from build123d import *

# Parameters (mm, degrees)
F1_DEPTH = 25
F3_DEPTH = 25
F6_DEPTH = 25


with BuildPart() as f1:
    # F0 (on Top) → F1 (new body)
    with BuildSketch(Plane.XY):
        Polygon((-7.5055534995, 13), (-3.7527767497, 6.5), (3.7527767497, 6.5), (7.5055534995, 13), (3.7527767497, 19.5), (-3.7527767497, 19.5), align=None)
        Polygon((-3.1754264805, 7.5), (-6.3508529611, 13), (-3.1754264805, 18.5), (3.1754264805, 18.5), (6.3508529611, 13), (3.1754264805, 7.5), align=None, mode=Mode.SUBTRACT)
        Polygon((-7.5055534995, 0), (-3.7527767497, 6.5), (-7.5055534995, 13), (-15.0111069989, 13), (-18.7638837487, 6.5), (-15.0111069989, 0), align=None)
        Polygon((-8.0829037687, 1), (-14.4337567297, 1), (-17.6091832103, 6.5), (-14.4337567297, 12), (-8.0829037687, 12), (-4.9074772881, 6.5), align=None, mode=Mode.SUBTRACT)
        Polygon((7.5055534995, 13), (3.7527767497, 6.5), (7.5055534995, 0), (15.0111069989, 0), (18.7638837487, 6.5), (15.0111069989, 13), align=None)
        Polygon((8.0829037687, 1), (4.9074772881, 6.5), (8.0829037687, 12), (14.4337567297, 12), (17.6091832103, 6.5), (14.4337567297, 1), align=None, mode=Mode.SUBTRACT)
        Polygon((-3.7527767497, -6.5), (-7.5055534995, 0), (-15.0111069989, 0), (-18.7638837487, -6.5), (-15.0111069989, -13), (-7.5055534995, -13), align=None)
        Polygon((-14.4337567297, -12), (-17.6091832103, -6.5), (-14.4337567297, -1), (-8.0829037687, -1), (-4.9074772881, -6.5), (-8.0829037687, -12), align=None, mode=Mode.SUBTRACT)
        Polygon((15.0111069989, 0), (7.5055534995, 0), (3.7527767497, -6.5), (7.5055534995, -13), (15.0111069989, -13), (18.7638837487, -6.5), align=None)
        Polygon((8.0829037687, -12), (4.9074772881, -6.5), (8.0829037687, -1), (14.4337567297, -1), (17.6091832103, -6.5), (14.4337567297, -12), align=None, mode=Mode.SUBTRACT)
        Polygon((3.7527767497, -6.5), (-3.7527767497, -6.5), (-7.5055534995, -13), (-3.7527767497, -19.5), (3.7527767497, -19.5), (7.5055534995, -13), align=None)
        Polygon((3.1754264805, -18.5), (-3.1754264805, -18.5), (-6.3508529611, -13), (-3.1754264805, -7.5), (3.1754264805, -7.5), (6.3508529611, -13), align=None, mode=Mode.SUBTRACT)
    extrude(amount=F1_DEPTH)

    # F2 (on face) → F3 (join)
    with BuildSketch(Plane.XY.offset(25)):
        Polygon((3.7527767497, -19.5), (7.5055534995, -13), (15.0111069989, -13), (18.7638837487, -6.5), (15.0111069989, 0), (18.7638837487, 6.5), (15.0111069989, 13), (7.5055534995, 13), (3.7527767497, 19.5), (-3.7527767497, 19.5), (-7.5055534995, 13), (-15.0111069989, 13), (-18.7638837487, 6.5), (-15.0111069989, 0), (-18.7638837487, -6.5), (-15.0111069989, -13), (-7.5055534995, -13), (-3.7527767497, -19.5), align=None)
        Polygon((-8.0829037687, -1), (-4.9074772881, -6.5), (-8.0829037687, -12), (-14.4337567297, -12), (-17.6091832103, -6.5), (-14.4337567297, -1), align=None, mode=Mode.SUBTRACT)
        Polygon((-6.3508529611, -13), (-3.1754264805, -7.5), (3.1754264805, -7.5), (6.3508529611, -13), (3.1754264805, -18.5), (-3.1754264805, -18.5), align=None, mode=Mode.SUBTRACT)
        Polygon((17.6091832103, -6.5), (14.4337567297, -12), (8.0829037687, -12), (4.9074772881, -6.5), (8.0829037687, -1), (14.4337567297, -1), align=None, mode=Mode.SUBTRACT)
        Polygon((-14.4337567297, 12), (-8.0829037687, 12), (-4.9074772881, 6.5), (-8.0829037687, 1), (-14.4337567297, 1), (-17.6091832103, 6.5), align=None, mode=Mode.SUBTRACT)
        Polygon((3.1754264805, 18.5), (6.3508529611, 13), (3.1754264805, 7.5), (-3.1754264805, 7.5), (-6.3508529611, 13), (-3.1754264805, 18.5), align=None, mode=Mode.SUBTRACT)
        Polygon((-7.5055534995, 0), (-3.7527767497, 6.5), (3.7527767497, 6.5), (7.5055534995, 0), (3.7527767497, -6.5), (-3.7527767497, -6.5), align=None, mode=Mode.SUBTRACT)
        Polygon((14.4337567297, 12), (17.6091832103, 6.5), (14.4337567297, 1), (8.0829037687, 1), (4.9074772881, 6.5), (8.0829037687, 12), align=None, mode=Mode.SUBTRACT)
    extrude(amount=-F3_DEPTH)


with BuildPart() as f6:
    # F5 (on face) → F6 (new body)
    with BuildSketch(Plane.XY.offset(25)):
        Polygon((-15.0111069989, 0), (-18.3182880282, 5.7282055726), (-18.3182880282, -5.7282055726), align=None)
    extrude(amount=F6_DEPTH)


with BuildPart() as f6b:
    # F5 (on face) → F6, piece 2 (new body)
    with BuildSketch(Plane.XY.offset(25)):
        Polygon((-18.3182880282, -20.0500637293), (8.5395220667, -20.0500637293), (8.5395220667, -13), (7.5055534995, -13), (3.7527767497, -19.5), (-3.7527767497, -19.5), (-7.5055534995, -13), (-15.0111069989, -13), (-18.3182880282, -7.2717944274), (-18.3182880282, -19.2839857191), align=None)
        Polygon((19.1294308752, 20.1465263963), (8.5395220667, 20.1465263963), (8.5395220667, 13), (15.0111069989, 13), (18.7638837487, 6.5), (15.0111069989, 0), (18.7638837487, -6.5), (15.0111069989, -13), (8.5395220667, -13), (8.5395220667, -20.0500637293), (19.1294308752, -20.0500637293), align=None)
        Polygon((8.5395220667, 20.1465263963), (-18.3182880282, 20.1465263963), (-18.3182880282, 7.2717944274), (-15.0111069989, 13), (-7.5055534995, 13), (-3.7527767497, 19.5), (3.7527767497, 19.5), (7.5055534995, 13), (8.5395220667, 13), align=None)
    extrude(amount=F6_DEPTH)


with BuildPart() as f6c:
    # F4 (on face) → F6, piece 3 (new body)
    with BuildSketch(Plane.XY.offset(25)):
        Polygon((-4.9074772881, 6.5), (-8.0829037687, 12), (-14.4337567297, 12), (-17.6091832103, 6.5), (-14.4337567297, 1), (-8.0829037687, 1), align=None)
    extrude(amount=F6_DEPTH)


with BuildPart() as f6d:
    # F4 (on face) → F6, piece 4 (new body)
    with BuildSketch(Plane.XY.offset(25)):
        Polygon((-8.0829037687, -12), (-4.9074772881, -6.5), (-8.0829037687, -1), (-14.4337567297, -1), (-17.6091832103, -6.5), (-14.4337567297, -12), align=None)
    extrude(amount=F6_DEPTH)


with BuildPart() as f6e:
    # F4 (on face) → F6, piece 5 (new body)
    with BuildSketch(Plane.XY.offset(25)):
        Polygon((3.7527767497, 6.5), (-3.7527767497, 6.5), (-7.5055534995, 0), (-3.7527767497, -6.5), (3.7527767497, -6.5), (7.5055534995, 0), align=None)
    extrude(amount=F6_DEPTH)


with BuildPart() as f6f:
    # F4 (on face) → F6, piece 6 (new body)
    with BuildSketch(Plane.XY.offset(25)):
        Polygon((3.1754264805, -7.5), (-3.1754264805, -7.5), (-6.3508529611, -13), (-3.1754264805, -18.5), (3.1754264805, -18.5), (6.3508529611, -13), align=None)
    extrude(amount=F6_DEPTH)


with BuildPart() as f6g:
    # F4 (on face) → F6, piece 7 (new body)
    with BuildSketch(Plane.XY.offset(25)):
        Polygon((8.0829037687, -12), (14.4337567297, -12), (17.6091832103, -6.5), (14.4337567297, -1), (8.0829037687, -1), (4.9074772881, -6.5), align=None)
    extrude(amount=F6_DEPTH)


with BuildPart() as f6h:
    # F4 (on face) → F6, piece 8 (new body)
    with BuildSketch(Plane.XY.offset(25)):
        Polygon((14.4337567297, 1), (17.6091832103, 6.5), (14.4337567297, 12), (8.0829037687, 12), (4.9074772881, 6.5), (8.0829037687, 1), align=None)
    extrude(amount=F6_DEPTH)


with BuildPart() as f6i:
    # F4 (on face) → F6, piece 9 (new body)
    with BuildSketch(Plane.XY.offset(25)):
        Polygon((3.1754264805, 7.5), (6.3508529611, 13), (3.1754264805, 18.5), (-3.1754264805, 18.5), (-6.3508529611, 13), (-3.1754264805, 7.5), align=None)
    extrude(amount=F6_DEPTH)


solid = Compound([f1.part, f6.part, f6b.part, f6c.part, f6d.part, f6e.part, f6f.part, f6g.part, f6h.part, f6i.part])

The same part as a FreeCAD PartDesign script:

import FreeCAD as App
import Part
import Sketcher
from FreeCAD import Vector
Q = App.Units.Quantity

doc = App.newDocument("Part")
params = doc.addObject("Spreadsheet::Sheet", "Params")
for row, (alias, value) in enumerate([
    ("pad1_length", "25 mm"),
    ("pad2_length", "25 mm"),
    ("pad3_length", "25 mm"),
    ("pad4_length", "25 mm"),
    ("pad5_length", "25 mm"),
    ("pad6_length", "25 mm"),
    ("pad7_length", "25 mm"),
    ("pad8_length", "25 mm"),
    ("pad9_length", "25 mm"),
    ("pad10_length", "25 mm"),
    ("pad11_length", "25 mm"),
], start=1):
    params.set(f"A{row}", alias)
    params.set(f"B{row}", "=" + value)
    params.setAlias(f"B{row}", alias)

body = doc.addObject("PartDesign::Body", "Body")

# Sketch on XY plane
sketch1 = body.newObject("Sketcher::SketchObject", "Sketch")
sketch1.AttachmentSupport = (doc.getObject("XY_Plane"), [""])
sketch1.MapMode = "FlatFace"
sketch1.addGeometry([
    Part.LineSegment(Vector(-4, 20, 0), Vector(-8, 13, 0)),  # 0
    Part.LineSegment(Vector(-8, 13, 0), Vector(-15, 13, 0)),  # 1
    Part.LineSegment(Vector(-15, 13, 0), Vector(-19, 6, 0)),  # 2
    Part.LineSegment(Vector(-19, 6, 0), Vector(-15, 0, 0)),  # 3
    Part.LineSegment(Vector(-15, 0, 0), Vector(-19, -6, 0)),  # 4
    Part.LineSegment(Vector(-19, -6, 0), Vector(-15, -13, 0)),  # 5
    Part.LineSegment(Vector(-15, -13, 0), Vector(-8, -13, 0)),  # 6
    Part.LineSegment(Vector(-8, -13, 0), Vector(-4, -20, 0)),  # 7
    Part.LineSegment(Vector(-4, -20, 0), Vector(4, -20, 0)),  # 8
    Part.LineSegment(Vector(4, -20, 0), Vector(8, -13, 0)),  # 9
    Part.LineSegment(Vector(8, -13, 0), Vector(15, -13, 0)),  # 10
    Part.LineSegment(Vector(15, -13, 0), Vector(19, -6, 0)),  # 11
    Part.LineSegment(Vector(19, -6, 0), Vector(15, 0, 0)),  # 12
    Part.LineSegment(Vector(15, 0, 0), Vector(19, 6, 0)),  # 13
    Part.LineSegment(Vector(19, 6, 0), Vector(15, 13, 0)),  # 14
    Part.LineSegment(Vector(15, 13, 0), Vector(8, 13, 0)),  # 15
    Part.LineSegment(Vector(8, 13, 0), Vector(4, 20, 0)),  # 16
    Part.LineSegment(Vector(4, 20, 0), Vector(-4, 20, 0)),  # 17
    Part.LineSegment(Vector(-8, -12, 0), Vector(-14, -12, 0)),  # 18
    Part.LineSegment(Vector(-14, -12, 0), Vector(-18, -6, 0)),  # 19
    Part.LineSegment(Vector(-18, -6, 0), Vector(-14, -1, 0)),  # 20
    Part.LineSegment(Vector(-14, -1, 0), Vector(-8, -1, 0)),  # 21
    Part.LineSegment(Vector(-8, -1, 0), Vector(-5, -6, 0)),  # 22
    Part.LineSegment(Vector(-5, -6, 0), Vector(-8, -12, 0)),  # 23
    Part.LineSegment(Vector(6, -13, 0), Vector(3, -18, 0)),  # 24
    Part.LineSegment(Vector(3, -18, 0), Vector(-3, -18, 0)),  # 25
    Part.LineSegment(Vector(-3, -18, 0), Vector(-6, -13, 0)),  # 26
    Part.LineSegment(Vector(-6, -13, 0), Vector(-3, -8, 0)),  # 27
    Part.LineSegment(Vector(-3, -8, 0), Vector(3, -8, 0)),  # 28
    Part.LineSegment(Vector(3, -8, 0), Vector(6, -13, 0)),  # 29
    Part.LineSegment(Vector(14, -12, 0), Vector(8, -12, 0)),  # 30
    Part.LineSegment(Vector(8, -12, 0), Vector(5, -6, 0)),  # 31
    Part.LineSegment(Vector(5, -6, 0), Vector(8, -1, 0)),  # 32
    Part.LineSegment(Vector(8, -1, 0), Vector(14, -1, 0)),  # 33
    Part.LineSegment(Vector(14, -1, 0), Vector(18, -6, 0)),  # 34
    Part.LineSegment(Vector(18, -6, 0), Vector(14, -12, 0)),  # 35
    Part.LineSegment(Vector(-5, 6, 0), Vector(-8, 1, 0)),  # 36
    Part.LineSegment(Vector(-8, 1, 0), Vector(-14, 1, 0)),  # 37
    Part.LineSegment(Vector(-14, 1, 0), Vector(-18, 6, 0)),  # 38
    Part.LineSegment(Vector(-18, 6, 0), Vector(-14, 12, 0)),  # 39
    Part.LineSegment(Vector(-14, 12, 0), Vector(-8, 12, 0)),  # 40
    Part.LineSegment(Vector(-8, 12, 0), Vector(-5, 6, 0)),  # 41
    Part.LineSegment(Vector(-4, -6, 0), Vector(-8, 0, 0)),  # 42
    Part.LineSegment(Vector(-8, 0, 0), Vector(-4, 6, 0)),  # 43
    Part.LineSegment(Vector(-4, 6, 0), Vector(4, 6, 0)),  # 44
    Part.LineSegment(Vector(4, 6, 0), Vector(8, 0, 0)),  # 45
    Part.LineSegment(Vector(8, 0, 0), Vector(4, -6, 0)),  # 46
    Part.LineSegment(Vector(4, -6, 0), Vector(-4, -6, 0)),  # 47
    Part.LineSegment(Vector(14, 1, 0), Vector(8, 1, 0)),  # 48
    Part.LineSegment(Vector(8, 1, 0), Vector(5, 6, 0)),  # 49
    Part.LineSegment(Vector(5, 6, 0), Vector(8, 12, 0)),  # 50
    Part.LineSegment(Vector(8, 12, 0), Vector(14, 12, 0)),  # 51
    Part.LineSegment(Vector(14, 12, 0), Vector(18, 6, 0)),  # 52
    Part.LineSegment(Vector(18, 6, 0), Vector(14, 1, 0)),  # 53
    Part.LineSegment(Vector(3, 8, 0), Vector(-3, 8, 0)),  # 54
    Part.LineSegment(Vector(-3, 8, 0), Vector(-6, 13, 0)),  # 55
    Part.LineSegment(Vector(-6, 13, 0), Vector(-3, 18, 0)),  # 56
    Part.LineSegment(Vector(-3, 18, 0), Vector(3, 18, 0)),  # 57
    Part.LineSegment(Vector(3, 18, 0), Vector(6, 13, 0)),  # 58
    Part.LineSegment(Vector(6, 13, 0), Vector(3, 8, 0)),  # 59
], False)
sketch1.addConstraint([
    Sketcher.Constraint("Coincident", 0, 2, 1, 1),
    Sketcher.Constraint("Coincident", 1, 2, 2, 1),
    Sketcher.Constraint("Coincident", 2, 2, 3, 1),
    Sketcher.Constraint("Coincident", 3, 2, 4, 1),
    Sketcher.Constraint("Coincident", 4, 2, 5, 1),
    Sketcher.Constraint("Coincident", 5, 2, 6, 1),
    Sketcher.Constraint("Coincident", 6, 2, 7, 1),
    Sketcher.Constraint("Coincident", 7, 2, 8, 1),
    Sketcher.Constraint("Coincident", 8, 2, 9, 1),
    Sketcher.Constraint("Coincident", 9, 2, 10, 1),
    Sketcher.Constraint("Coincident", 10, 2, 11, 1),
    Sketcher.Constraint("Coincident", 11, 2, 12, 1),
    Sketcher.Constraint("Coincident", 12, 2, 13, 1),
    Sketcher.Constraint("Coincident", 13, 2, 14, 1),
    Sketcher.Constraint("Coincident", 14, 2, 15, 1),
    Sketcher.Constraint("Coincident", 15, 2, 16, 1),
    Sketcher.Constraint("Coincident", 16, 2, 17, 1),
    Sketcher.Constraint("Coincident", 17, 2, 0, 1),
    Sketcher.Constraint("Coincident", 18, 2, 19, 1),
    Sketcher.Constraint("Coincident", 19, 2, 20, 1),
    Sketcher.Constraint("Coincident", 20, 2, 21, 1),
    Sketcher.Constraint("Coincident", 21, 2, 22, 1),
    Sketcher.Constraint("Coincident", 22, 2, 23, 1),
    Sketcher.Constraint("Coincident", 23, 2, 18, 1),
    Sketcher.Constraint("Coincident", 24, 2, 25, 1),
    Sketcher.Constraint("Coincident", 25, 2, 26, 1),
    Sketcher.Constraint("Coincident", 26, 2, 27, 1),
    Sketcher.Constraint("Coincident", 27, 2, 28, 1),
    Sketcher.Constraint("Coincident", 28, 2, 29, 1),
    Sketcher.Constraint("Coincident", 29, 2, 24, 1),
    Sketcher.Constraint("Coincident", 30, 2, 31, 1),
    Sketcher.Constraint("Coincident", 31, 2, 32, 1),
    Sketcher.Constraint("Coincident", 32, 2, 33, 1),
    Sketcher.Constraint("Coincident", 33, 2, 34, 1),
    Sketcher.Constraint("Coincident", 34, 2, 35, 1),
    Sketcher.Constraint("Coincident", 35, 2, 30, 1),
    Sketcher.Constraint("Coincident", 36, 2, 37, 1),
    Sketcher.Constraint("Coincident", 37, 2, 38, 1),
    Sketcher.Constraint("Coincident", 38, 2, 39, 1),
    Sketcher.Constraint("Coincident", 39, 2, 40, 1),
    Sketcher.Constraint("Coincident", 40, 2, 41, 1),
    Sketcher.Constraint("Coincident", 41, 2, 36, 1),
    Sketcher.Constraint("Coincident", 42, 2, 43, 1),
    Sketcher.Constraint("Coincident", 43, 2, 44, 1),
    Sketcher.Constraint("Coincident", 44, 2, 45, 1),
    Sketcher.Constraint("Coincident", 45, 2, 46, 1),
    Sketcher.Constraint("Coincident", 46, 2, 47, 1),
    Sketcher.Constraint("Coincident", 47, 2, 42, 1),
    Sketcher.Constraint("Coincident", 48, 2, 49, 1),
    Sketcher.Constraint("Coincident", 49, 2, 50, 1),
    Sketcher.Constraint("Coincident", 50, 2, 51, 1),
    Sketcher.Constraint("Coincident", 51, 2, 52, 1),
    Sketcher.Constraint("Coincident", 52, 2, 53, 1),
    Sketcher.Constraint("Coincident", 53, 2, 48, 1),
    Sketcher.Constraint("Coincident", 54, 2, 55, 1),
    Sketcher.Constraint("Coincident", 55, 2, 56, 1),
    Sketcher.Constraint("Coincident", 56, 2, 57, 1),
    Sketcher.Constraint("Coincident", 57, 2, 58, 1),
    Sketcher.Constraint("Coincident", 58, 2, 59, 1),
    Sketcher.Constraint("Coincident", 59, 2, 54, 1),
    Sketcher.Constraint("Horizontal", 1),
    Sketcher.Constraint("Horizontal", 6),
    Sketcher.Constraint("Horizontal", 8),
    Sketcher.Constraint("Horizontal", 10),
    Sketcher.Constraint("Horizontal", 15),
    Sketcher.Constraint("Horizontal", 17),
    Sketcher.Constraint("Horizontal", 18),
    Sketcher.Constraint("Horizontal", 21),
    Sketcher.Constraint("Horizontal", 25),
    Sketcher.Constraint("Horizontal", 28),
    Sketcher.Constraint("Horizontal", 30),
    Sketcher.Constraint("Horizontal", 33),
    Sketcher.Constraint("Horizontal", 37),
    Sketcher.Constraint("Horizontal", 40),
    Sketcher.Constraint("Horizontal", 44),
    Sketcher.Constraint("Horizontal", 47),
    Sketcher.Constraint("Horizontal", 48),
    Sketcher.Constraint("Horizontal", 51),
    Sketcher.Constraint("Horizontal", 54),
    Sketcher.Constraint("Horizontal", 57),
    Sketcher.Constraint("Symmetric", 0, 2, 9, 2, -1, 1),
    Sketcher.Constraint("Symmetric", 2, 2, 11, 2, -1, 1),
    Sketcher.Constraint("Symmetric", 3, 2, 12, 2, -1, 1),
    Sketcher.Constraint("Symmetric", 4, 2, 13, 2, -1, 1),
    Sketcher.Constraint("Symmetric", 5, 2, 14, 2, -1, 1),
    Sketcher.Constraint("Symmetric", 7, 2, 16, 2, -1, 1),
    Sketcher.Constraint("Symmetric", 32, 2, 36, 2, -1, 1),
    Sketcher.Constraint("Symmetric", 34, 2, 38, 2, -1, 1),
    Sketcher.Constraint("Symmetric", 35, 2, 39, 2, -1, 1),
    Sketcher.Constraint("Symmetric", 31, 2, 41, 2, -1, 1),
    Sketcher.Constraint("Symmetric", 42, 2, 45, 2, -1, 1),
    Sketcher.Constraint("Symmetric", 43, 2, 46, 2, -1, 1),
    Sketcher.Constraint("Symmetric", 21, 2, 48, 2, -1, 1),
    Sketcher.Constraint("Symmetric", 22, 2, 49, 2, -1, 1),
    Sketcher.Constraint("Symmetric", 23, 2, 50, 2, -1, 1),
    Sketcher.Constraint("Symmetric", 19, 2, 52, 2, -1, 1),
    Sketcher.Constraint("Symmetric", 28, 2, 54, 2, -1, 1),
    Sketcher.Constraint("Symmetric", 29, 2, 55, 2, -1, 1),
    Sketcher.Constraint("Symmetric", 24, 2, 56, 2, -1, 1),
    Sketcher.Constraint("Symmetric", 26, 2, 58, 2, -1, 1),
    Sketcher.Constraint("Symmetric", 6, 2, 9, 2, -2),
    Sketcher.Constraint("Symmetric", 4, 2, 11, 2, -2),
    Sketcher.Constraint("Symmetric", 26, 2, 29, 2, -2),
    Sketcher.Constraint("Symmetric", 23, 2, 30, 2, -2),
    Sketcher.Constraint("Symmetric", 22, 2, 31, 2, -2),
    Sketcher.Constraint("Symmetric", 21, 2, 32, 2, -2),
    Sketcher.Constraint("Symmetric", 19, 2, 34, 2, -2),
    Sketcher.Constraint("PointOnObject", 3, 2, -1),
    Sketcher.Constraint("PointOnObject", 42, 2, -1),
    Sketcher.Constraint("Parallel", 0, 2),
    Sketcher.Constraint("Parallel", 2, 4),
    Sketcher.Constraint("Parallel", 3, 5),
    Sketcher.Constraint("Parallel", 5, 7),
    Sketcher.Constraint("Parallel", 4, 9),
    Sketcher.Constraint("Parallel", 9, 11),
    Sketcher.Constraint("Parallel", 14, 16),
    Sketcher.Constraint("Parallel", 16, 19),
    Sketcher.Constraint("Parallel", 13, 20),
    Sketcher.Constraint("Parallel", 19, 22),
    Sketcher.Constraint("Parallel", 20, 23),
    Sketcher.Constraint("Parallel", 23, 24),
    Sketcher.Constraint("Parallel", 22, 26),
    Sketcher.Constraint("Parallel", 24, 27),
    Sketcher.Constraint("Parallel", 26, 29),
    Sketcher.Constraint("Parallel", 31, 34),
    Sketcher.Constraint("Parallel", 32, 35),
    Sketcher.Constraint("Parallel", 34, 38),
    Sketcher.Constraint("Parallel", 38, 41),
    Sketcher.Constraint("Parallel", 41, 42),
    Sketcher.Constraint("Parallel", 39, 43),
    Sketcher.Constraint("Parallel", 42, 45),
    Sketcher.Constraint("Parallel", 49, 52),
    Sketcher.Constraint("Parallel", 50, 53),
    Sketcher.Constraint("Parallel", 55, 58),
    Sketcher.Constraint("Parallel", 56, 59),
    Sketcher.Constraint("Horizontal", 11, 2, 19, 2),
    Sketcher.Constraint("Horizontal", 19, 2, 22, 2),
    Sketcher.Constraint("Horizontal", 10, 2, 26, 2),
    Sketcher.Constraint("Horizontal", 41, 2, 43, 2),
    Sketcher.Constraint("Vertical", 1, 2, 3, 2),
    Sketcher.Constraint("Vertical", 18, 2, 20, 2),
    Sketcher.Constraint("Vertical", 25, 2, 27, 2),
    Sketcher.Constraint("Vertical", 6, 2, 42, 2),
    Sketcher.Constraint("Vertical", 17, 2, 43, 2),
    Sketcher.Constraint("Equal", 6, 8),
    Sketcher.Constraint("Equal", 21, 25),
    Sketcher.Constraint("Equal", 23, 24),
    Sketcher.Constraint("Angle", 0, Q("-120 deg")),
    Sketcher.Constraint("DistanceY", -1, 1, 0, 2, 13.0),
    Sketcher.Constraint("DistanceY", 18, 2, -1, 1, 12.0),
    Sketcher.Constraint("DistanceX", 4, 2, 19, 2, 1.154701),
    Sketcher.Constraint("DistanceX", 6, 2, 26, 2, 1.154701),
    Sketcher.Constraint("DistanceX", 1, 2, 1, 1, 7.505553),
])
pad1 = body.newObject("PartDesign::Pad", "Pad")
pad1.Profile = sketch1
pad1.setExpression("Length", "Params.pad1_length")

# Sketch on XY plane
sketch2 = body.newObject("Sketcher::SketchObject", "Sketch001")
sketch2.AttachmentSupport = (doc.getObject("XY_Plane"), [""])
sketch2.MapMode = "FlatFace"
sketch2.AttachmentOffset = App.Placement(Vector(0, 0, 25), App.Rotation())
sketch2.addGeometry([
    Part.LineSegment(Vector(4, -20, 0), Vector(8, -13, 0)),  # 0
    Part.LineSegment(Vector(8, -13, 0), Vector(15, -13, 0)),  # 1
    Part.LineSegment(Vector(15, -13, 0), Vector(19, -6, 0)),  # 2
    Part.LineSegment(Vector(19, -6, 0), Vector(15, 0, 0)),  # 3
    Part.LineSegment(Vector(15, 0, 0), Vector(19, 6, 0)),  # 4
    Part.LineSegment(Vector(19, 6, 0), Vector(15, 13, 0)),  # 5
    Part.LineSegment(Vector(15, 13, 0), Vector(8, 13, 0)),  # 6
    Part.LineSegment(Vector(8, 13, 0), Vector(4, 20, 0)),  # 7
    Part.LineSegment(Vector(4, 20, 0), Vector(-4, 20, 0)),  # 8
    Part.LineSegment(Vector(-4, 20, 0), Vector(-8, 13, 0)),  # 9
    Part.LineSegment(Vector(-8, 13, 0), Vector(-15, 13, 0)),  # 10
    Part.LineSegment(Vector(-15, 13, 0), Vector(-19, 6, 0)),  # 11
    Part.LineSegment(Vector(-19, 6, 0), Vector(-15, 0, 0)),  # 12
    Part.LineSegment(Vector(-15, 0, 0), Vector(-19, -6, 0)),  # 13
    Part.LineSegment(Vector(-19, -6, 0), Vector(-15, -13, 0)),  # 14
    Part.LineSegment(Vector(-15, -13, 0), Vector(-8, -13, 0)),  # 15
    Part.LineSegment(Vector(-8, -13, 0), Vector(-4, -20, 0)),  # 16
    Part.LineSegment(Vector(-4, -20, 0), Vector(4, -20, 0)),  # 17
    Part.LineSegment(Vector(-14, -1, 0), Vector(-8, -1, 0)),  # 18
    Part.LineSegment(Vector(-8, -1, 0), Vector(-5, -6, 0)),  # 19
    Part.LineSegment(Vector(-5, -6, 0), Vector(-8, -12, 0)),  # 20
    Part.LineSegment(Vector(-8, -12, 0), Vector(-14, -12, 0)),  # 21
    Part.LineSegment(Vector(-14, -12, 0), Vector(-18, -6, 0)),  # 22
    Part.LineSegment(Vector(-18, -6, 0), Vector(-14, -1, 0)),  # 23
    Part.LineSegment(Vector(-3, -18, 0), Vector(-6, -13, 0)),  # 24
    Part.LineSegment(Vector(-6, -13, 0), Vector(-3, -8, 0)),  # 25
    Part.LineSegment(Vector(-3, -8, 0), Vector(3, -8, 0)),  # 26
    Part.LineSegment(Vector(3, -8, 0), Vector(6, -13, 0)),  # 27
    Part.LineSegment(Vector(6, -13, 0), Vector(3, -18, 0)),  # 28
    Part.LineSegment(Vector(3, -18, 0), Vector(-3, -18, 0)),  # 29
    Part.LineSegment(Vector(14, -1, 0), Vector(18, -6, 0)),  # 30
    Part.LineSegment(Vector(18, -6, 0), Vector(14, -12, 0)),  # 31
    Part.LineSegment(Vector(14, -12, 0), Vector(8, -12, 0)),  # 32
    Part.LineSegment(Vector(8, -12, 0), Vector(5, -6, 0)),  # 33
    Part.LineSegment(Vector(5, -6, 0), Vector(8, -1, 0)),  # 34
    Part.LineSegment(Vector(8, -1, 0), Vector(14, -1, 0)),  # 35
    Part.LineSegment(Vector(-18, 6, 0), Vector(-14, 12, 0)),  # 36
    Part.LineSegment(Vector(-14, 12, 0), Vector(-8, 12, 0)),  # 37
    Part.LineSegment(Vector(-8, 12, 0), Vector(-5, 6, 0)),  # 38
    Part.LineSegment(Vector(-5, 6, 0), Vector(-8, 1, 0)),  # 39
    Part.LineSegment(Vector(-8, 1, 0), Vector(-14, 1, 0)),  # 40
    Part.LineSegment(Vector(-14, 1, 0), Vector(-18, 6, 0)),  # 41
    Part.LineSegment(Vector(-4, -6, 0), Vector(-8, 0, 0)),  # 42
    Part.LineSegment(Vector(-8, 0, 0), Vector(-4, 6, 0)),  # 43
    Part.LineSegment(Vector(-4, 6, 0), Vector(4, 6, 0)),  # 44
    Part.LineSegment(Vector(4, 6, 0), Vector(8, 0, 0)),  # 45
    Part.LineSegment(Vector(8, 0, 0), Vector(4, -6, 0)),  # 46
    Part.LineSegment(Vector(4, -6, 0), Vector(-4, -6, 0)),  # 47
    Part.LineSegment(Vector(8, 12, 0), Vector(14, 12, 0)),  # 48
    Part.LineSegment(Vector(14, 12, 0), Vector(18, 6, 0)),  # 49
    Part.LineSegment(Vector(18, 6, 0), Vector(14, 1, 0)),  # 50
    Part.LineSegment(Vector(14, 1, 0), Vector(8, 1, 0)),  # 51
    Part.LineSegment(Vector(8, 1, 0), Vector(5, 6, 0)),  # 52
    Part.LineSegment(Vector(5, 6, 0), Vector(8, 12, 0)),  # 53
    Part.LineSegment(Vector(-3, 18, 0), Vector(3, 18, 0)),  # 54
    Part.LineSegment(Vector(3, 18, 0), Vector(6, 13, 0)),  # 55
    Part.LineSegment(Vector(6, 13, 0), Vector(3, 8, 0)),  # 56
    Part.LineSegment(Vector(3, 8, 0), Vector(-3, 8, 0)),  # 57
    Part.LineSegment(Vector(-3, 8, 0), Vector(-6, 13, 0)),  # 58
    Part.LineSegment(Vector(-6, 13, 0), Vector(-3, 18, 0)),  # 59
], False)
sketch2.addConstraint([
    Sketcher.Constraint("Coincident", 0, 2, 1, 1),
    Sketcher.Constraint("Coincident", 1, 2, 2, 1),
    Sketcher.Constraint("Coincident", 2, 2, 3, 1),
    Sketcher.Constraint("Coincident", 3, 2, 4, 1),
    Sketcher.Constraint("Coincident", 4, 2, 5, 1),
    Sketcher.Constraint("Coincident", 5, 2, 6, 1),
    Sketcher.Constraint("Coincident", 6, 2, 7, 1),
    Sketcher.Constraint("Coincident", 7, 2, 8, 1),
    Sketcher.Constraint("Coincident", 8, 2, 9, 1),
    Sketcher.Constraint("Coincident", 9, 2, 10, 1),
    Sketcher.Constraint("Coincident", 10, 2, 11, 1),
    Sketcher.Constraint("Coincident", 11, 2, 12, 1),
    Sketcher.Constraint("Coincident", 12, 2, 13, 1),
    Sketcher.Constraint("Coincident", 13, 2, 14, 1),
    Sketcher.Constraint("Coincident", 14, 2, 15, 1),
    Sketcher.Constraint("Coincident", 15, 2, 16, 1),
    Sketcher.Constraint("Coincident", 16, 2, 17, 1),
    Sketcher.Constraint("Coincident", 17, 2, 0, 1),
    Sketcher.Constraint("Coincident", 18, 2, 19, 1),
    Sketcher.Constraint("Coincident", 19, 2, 20, 1),
    Sketcher.Constraint("Coincident", 20, 2, 21, 1),
    Sketcher.Constraint("Coincident", 21, 2, 22, 1),
    Sketcher.Constraint("Coincident", 22, 2, 23, 1),
    Sketcher.Constraint("Coincident", 23, 2, 18, 1),
    Sketcher.Constraint("Coincident", 24, 2, 25, 1),
    Sketcher.Constraint("Coincident", 25, 2, 26, 1),
    Sketcher.Constraint("Coincident", 26, 2, 27, 1),
    Sketcher.Constraint("Coincident", 27, 2, 28, 1),
    Sketcher.Constraint("Coincident", 28, 2, 29, 1),
    Sketcher.Constraint("Coincident", 29, 2, 24, 1),
    Sketcher.Constraint("Coincident", 30, 2, 31, 1),
    Sketcher.Constraint("Coincident", 31, 2, 32, 1),
    Sketcher.Constraint("Coincident", 32, 2, 33, 1),
    Sketcher.Constraint("Coincident", 33, 2, 34, 1),
    Sketcher.Constraint("Coincident", 34, 2, 35, 1),
    Sketcher.Constraint("Coincident", 35, 2, 30, 1),
    Sketcher.Constraint("Coincident", 36, 2, 37, 1),
    Sketcher.Constraint("Coincident", 37, 2, 38, 1),
    Sketcher.Constraint("Coincident", 38, 2, 39, 1),
    Sketcher.Constraint("Coincident", 39, 2, 40, 1),
    Sketcher.Constraint("Coincident", 40, 2, 41, 1),
    Sketcher.Constraint("Coincident", 41, 2, 36, 1),
    Sketcher.Constraint("Coincident", 42, 2, 43, 1),
    Sketcher.Constraint("Coincident", 43, 2, 44, 1),
    Sketcher.Constraint("Coincident", 44, 2, 45, 1),
    Sketcher.Constraint("Coincident", 45, 2, 46, 1),
    Sketcher.Constraint("Coincident", 46, 2, 47, 1),
    Sketcher.Constraint("Coincident", 47, 2, 42, 1),
    Sketcher.Constraint("Coincident", 48, 2, 49, 1),
    Sketcher.Constraint("Coincident", 49, 2, 50, 1),
    Sketcher.Constraint("Coincident", 50, 2, 51, 1),
    Sketcher.Constraint("Coincident", 51, 2, 52, 1),
    Sketcher.Constraint("Coincident", 52, 2, 53, 1),
    Sketcher.Constraint("Coincident", 53, 2, 48, 1),
    Sketcher.Constraint("Coincident", 54, 2, 55, 1),
    Sketcher.Constraint("Coincident", 55, 2, 56, 1),
    Sketcher.Constraint("Coincident", 56, 2, 57, 1),
    Sketcher.Constraint("Coincident", 57, 2, 58, 1),
    Sketcher.Constraint("Coincident", 58, 2, 59, 1),
    Sketcher.Constraint("Coincident", 59, 2, 54, 1),
    Sketcher.Constraint("Horizontal", 1),
    Sketcher.Constraint("Horizontal", 6),
    Sketcher.Constraint("Horizontal", 8),
    Sketcher.Constraint("Horizontal", 10),
    Sketcher.Constraint("Horizontal", 15),
    Sketcher.Constraint("Horizontal", 17),
    Sketcher.Constraint("Horizontal", 18),
    Sketcher.Constraint("Horizontal", 21),
    Sketcher.Constraint("Horizontal", 26),
    Sketcher.Constraint("Horizontal", 29),
    Sketcher.Constraint("Horizontal", 32),
    Sketcher.Constraint("Horizontal", 35),
    Sketcher.Constraint("Horizontal", 37),
    Sketcher.Constraint("Horizontal", 40),
    Sketcher.Constraint("Horizontal", 44),
    Sketcher.Constraint("Horizontal", 47),
    Sketcher.Constraint("Horizontal", 48),
    Sketcher.Constraint("Horizontal", 51),
    Sketcher.Constraint("Horizontal", 54),
    Sketcher.Constraint("Horizontal", 57),
    Sketcher.Constraint("Symmetric", 0, 2, 9, 2, -1, 1),
    Sketcher.Constraint("Symmetric", 2, 2, 11, 2, -1, 1),
    Sketcher.Constraint("Symmetric", 3, 2, 12, 2, -1, 1),
    Sketcher.Constraint("Symmetric", 4, 2, 13, 2, -1, 1),
    Sketcher.Constraint("Symmetric", 5, 2, 14, 2, -1, 1),
    Sketcher.Constraint("Symmetric", 7, 2, 16, 2, -1, 1),
    Sketcher.Constraint("Symmetric", 31, 2, 36, 2, -1, 1),
    Sketcher.Constraint("Symmetric", 33, 2, 38, 2, -1, 1),
    Sketcher.Constraint("Symmetric", 34, 2, 39, 2, -1, 1),
    Sketcher.Constraint("Symmetric", 30, 2, 41, 2, -1, 1),
    Sketcher.Constraint("Symmetric", 42, 2, 45, 2, -1, 1),
    Sketcher.Constraint("Symmetric", 43, 2, 46, 2, -1, 1),
    Sketcher.Constraint("Symmetric", 21, 2, 48, 2, -1, 1),
    Sketcher.Constraint("Symmetric", 22, 2, 49, 2, -1, 1),
    Sketcher.Constraint("Symmetric", 23, 2, 50, 2, -1, 1),
    Sketcher.Constraint("Symmetric", 19, 2, 52, 2, -1, 1),
    Sketcher.Constraint("Symmetric", 29, 2, 54, 2, -1, 1),
    Sketcher.Constraint("Symmetric", 24, 2, 55, 2, -1, 1),
    Sketcher.Constraint("Symmetric", 25, 2, 56, 2, -1, 1),
    Sketcher.Constraint("Symmetric", 27, 2, 58, 2, -1, 1),
    Sketcher.Constraint("Symmetric", 6, 2, 9, 2, -2),
    Sketcher.Constraint("Symmetric", 4, 2, 11, 2, -2),
    Sketcher.Constraint("Symmetric", 24, 2, 27, 2, -2),
    Sketcher.Constraint("Symmetric", 22, 2, 30, 2, -2),
    Sketcher.Constraint("Symmetric", 21, 2, 31, 2, -2),
    Sketcher.Constraint("Symmetric", 19, 2, 33, 2, -2),
    Sketcher.Constraint("Symmetric", 18, 2, 34, 2, -2),
    Sketcher.Constraint("PointOnObject", 3, 2, -1),
    Sketcher.Constraint("PointOnObject", 42, 2, -1),
    Sketcher.Constraint("Parallel", 0, 2),
    Sketcher.Constraint("Parallel", 2, 4),
    Sketcher.Constraint("Parallel", 3, 5),
    Sketcher.Constraint("Parallel", 5, 7),
    Sketcher.Constraint("Parallel", 4, 9),
    Sketcher.Constraint("Parallel", 9, 11),
    Sketcher.Constraint("Parallel", 14, 16),
    Sketcher.Constraint("Parallel", 16, 19),
    Sketcher.Constraint("Parallel", 13, 20),
    Sketcher.Constraint("Parallel", 19, 22),
    Sketcher.Constraint("Parallel", 20, 23),
    Sketcher.Constraint("Parallel", 22, 24),
    Sketcher.Constraint("Parallel", 23, 25),
    Sketcher.Constraint("Parallel", 24, 27),
    Sketcher.Constraint("Parallel", 25, 28),
    Sketcher.Constraint("Parallel", 27, 30),
    Sketcher.Constraint("Parallel", 30, 33),
    Sketcher.Constraint("Parallel", 33, 38),
    Sketcher.Constraint("Parallel", 38, 41),
    Sketcher.Constraint("Parallel", 41, 42),
    Sketcher.Constraint("Parallel", 39, 43),
    Sketcher.Constraint("Parallel", 42, 45),
    Sketcher.Constraint("Parallel", 49, 52),
    Sketcher.Constraint("Parallel", 50, 53),
    Sketcher.Constraint("Parallel", 55, 58),
    Sketcher.Constraint("Parallel", 56, 59),
    Sketcher.Constraint("Horizontal", 13, 2, 19, 2),
    Sketcher.Constraint("Horizontal", 19, 2, 22, 2),
    Sketcher.Constraint("Horizontal", 15, 2, 24, 2),
    Sketcher.Constraint("Horizontal", 41, 2, 43, 2),
    Sketcher.Constraint("Vertical", 1, 2, 3, 2),
    Sketcher.Constraint("Vertical", 18, 2, 20, 2),
    Sketcher.Constraint("Vertical", 26, 2, 28, 2),
    Sketcher.Constraint("Vertical", 15, 2, 42, 2),
    Sketcher.Constraint("Vertical", 16, 2, 43, 2),
    Sketcher.Constraint("Equal", 6, 8),
    Sketcher.Constraint("Equal", 21, 26),
    Sketcher.Constraint("Equal", 23, 24),
    Sketcher.Constraint("Angle", 0, Q("60 deg")),
    Sketcher.Constraint("DistanceY", 0, 2, -1, 1, 13.0),
    Sketcher.Constraint("DistanceY", 18, 2, -1, 1, 1.0),
    Sketcher.Constraint("DistanceX", 19, 2, 16, 2, 1.154701),
    Sketcher.Constraint("DistanceX", 13, 2, 22, 2, 1.154701),
    Sketcher.Constraint("DistanceX", 1, 1, 1, 2, 7.505553),
])
pad2 = body.newObject("PartDesign::Pad", "Pad001")
pad2.Profile = sketch2
pad2.setExpression("Length", "Params.pad2_length")
pad2.Reversed = True
body2 = doc.addObject("PartDesign::Body", "Body001")

# Sketch on XY plane
sketch3 = body2.newObject("Sketcher::SketchObject", "Sketch002")
sketch3.AttachmentSupport = (doc.getObject("XY_Plane001"), [""])
sketch3.MapMode = "FlatFace"
sketch3.AttachmentOffset = App.Placement(Vector(0, 0, 25), App.Rotation())
sketch3.addGeometry([
    Part.LineSegment(Vector(-15, 0, 0), Vector(-18, 6, 0)),
    Part.LineSegment(Vector(-18, 6, 0), Vector(-18, -6, 0)),
    Part.LineSegment(Vector(-18, -6, 0), Vector(-15, 0, 0)),
], False)
sketch3.addConstraint([
    Sketcher.Constraint("Coincident", 0, 2, 1, 1),
    Sketcher.Constraint("Coincident", 1, 2, 2, 1),
    Sketcher.Constraint("Coincident", 2, 2, 0, 1),
    Sketcher.Constraint("Vertical", 1),
    Sketcher.Constraint("PointOnObject", 2, 2, -1),
    Sketcher.Constraint("Equal", 0, 2),
    Sketcher.Constraint("Angle", 0, Q("120 deg")),
    Sketcher.Constraint("DistanceY", 1, 2, 1, 1, 11.456411),
    Sketcher.Constraint("DistanceX", 0, 2, -1, 1, 18.318288),
])
pad3 = body2.newObject("PartDesign::Pad", "Pad002")
pad3.Profile = sketch3
pad3.setExpression("Length", "Params.pad3_length")
body3 = doc.addObject("PartDesign::Body", "Body002")

# Sketch on XY plane
sketch4 = body3.newObject("Sketcher::SketchObject", "Sketch003")
sketch4.AttachmentSupport = (doc.getObject("XY_Plane002"), [""])
sketch4.MapMode = "FlatFace"
sketch4.AttachmentOffset = App.Placement(Vector(0, 0, 25), App.Rotation())
sketch4.addGeometry([
    Part.LineSegment(Vector(-18, -20, 0), Vector(19, -20, 0)),  # 0
    Part.LineSegment(Vector(19, -20, 0), Vector(19, 20, 0)),  # 1
    Part.LineSegment(Vector(19, 20, 0), Vector(-18, 20, 0)),  # 2
    Part.LineSegment(Vector(-18, 20, 0), Vector(-18, 7, 0)),  # 3
    Part.LineSegment(Vector(-18, 7, 0), Vector(-15, 13, 0)),  # 4
    Part.LineSegment(Vector(-15, 13, 0), Vector(-8, 13, 0)),  # 5
    Part.LineSegment(Vector(-8, 13, 0), Vector(-4, 20, 0)),  # 6
    Part.LineSegment(Vector(-4, 20, 0), Vector(4, 20, 0)),  # 7
    Part.LineSegment(Vector(4, 20, 0), Vector(8, 13, 0)),  # 8
    Part.LineSegment(Vector(8, 13, 0), Vector(15, 13, 0)),  # 9
    Part.LineSegment(Vector(15, 13, 0), Vector(19, 6, 0)),  # 10
    Part.LineSegment(Vector(19, 6, 0), Vector(15, 0, 0)),  # 11
    Part.LineSegment(Vector(15, 0, 0), Vector(19, -6, 0)),  # 12
    Part.LineSegment(Vector(19, -6, 0), Vector(15, -13, 0)),  # 13
    Part.LineSegment(Vector(15, -13, 0), Vector(8, -13, 0)),  # 14
    Part.LineSegment(Vector(8, -13, 0), Vector(4, -20, 0)),  # 15
    Part.LineSegment(Vector(4, -20, 0), Vector(-4, -20, 0)),  # 16
    Part.LineSegment(Vector(-4, -20, 0), Vector(-8, -13, 0)),  # 17
    Part.LineSegment(Vector(-8, -13, 0), Vector(-15, -13, 0)),  # 18
    Part.LineSegment(Vector(-15, -13, 0), Vector(-18, -7, 0)),  # 19
    Part.LineSegment(Vector(-18, -7, 0), Vector(-18, -20, 0)),  # 20
], False)
sketch4.addConstraint([
    Sketcher.Constraint("Coincident", 0, 2, 1, 1),
    Sketcher.Constraint("Coincident", 1, 2, 2, 1),
    Sketcher.Constraint("Coincident", 2, 2, 3, 1),
    Sketcher.Constraint("Coincident", 3, 2, 4, 1),
    Sketcher.Constraint("Coincident", 4, 2, 5, 1),
    Sketcher.Constraint("Coincident", 5, 2, 6, 1),
    Sketcher.Constraint("Coincident", 6, 2, 7, 1),
    Sketcher.Constraint("Coincident", 7, 2, 8, 1),
    Sketcher.Constraint("Coincident", 8, 2, 9, 1),
    Sketcher.Constraint("Coincident", 9, 2, 10, 1),
    Sketcher.Constraint("Coincident", 10, 2, 11, 1),
    Sketcher.Constraint("Coincident", 11, 2, 12, 1),
    Sketcher.Constraint("Coincident", 12, 2, 13, 1),
    Sketcher.Constraint("Coincident", 13, 2, 14, 1),
    Sketcher.Constraint("Coincident", 14, 2, 15, 1),
    Sketcher.Constraint("Coincident", 15, 2, 16, 1),
    Sketcher.Constraint("Coincident", 16, 2, 17, 1),
    Sketcher.Constraint("Coincident", 17, 2, 18, 1),
    Sketcher.Constraint("Coincident", 18, 2, 19, 1),
    Sketcher.Constraint("Coincident", 19, 2, 20, 1),
    Sketcher.Constraint("Coincident", 20, 2, 0, 1),
    Sketcher.Constraint("Horizontal", 0),
    Sketcher.Constraint("Vertical", 1),
    Sketcher.Constraint("Horizontal", 2),
    Sketcher.Constraint("Vertical", 3),
    Sketcher.Constraint("Horizontal", 5),
    Sketcher.Constraint("Horizontal", 7),
    Sketcher.Constraint("Horizontal", 9),
    Sketcher.Constraint("Horizontal", 14),
    Sketcher.Constraint("Horizontal", 16),
    Sketcher.Constraint("Horizontal", 18),
    Sketcher.Constraint("Vertical", 20),
    Sketcher.Constraint("Symmetric", 4, 2, 13, 2, -1, 1),
    Sketcher.Constraint("Symmetric", 6, 2, 15, 2, -1, 1),
    Sketcher.Constraint("Symmetric", 8, 2, 17, 2, -1, 1),
    Sketcher.Constraint("Symmetric", 5, 2, 8, 2, -2),
    Sketcher.Constraint("Symmetric", 10, 2, 12, 2, -1),
    Sketcher.Constraint("Symmetric", 3, 2, 19, 2, -1),
    Sketcher.Constraint("PointOnObject", 11, 2, -1),
    Sketcher.Constraint("Parallel", 4, 6),
    Sketcher.Constraint("Parallel", 8, 10),
    Sketcher.Constraint("Parallel", 6, 11),
    Sketcher.Constraint("Parallel", 10, 12),
    Sketcher.Constraint("Parallel", 11, 13),
    Sketcher.Constraint("Parallel", 13, 15),
    Sketcher.Constraint("Parallel", 12, 17),
    Sketcher.Constraint("Parallel", 17, 19),
    Sketcher.Constraint("Vertical", 9, 2, 11, 2),
    Sketcher.Constraint("Equal", 5, 7),
    Sketcher.Constraint("Equal", 8, 10),
    Sketcher.Constraint("Angle", 4, Q("60 deg")),
    Sketcher.Constraint("DistanceY", -1, 1, 4, 2, 13.0),
    Sketcher.Constraint("DistanceX", 0, 1, 0, 2, 37.447719),
    Sketcher.Constraint("DistanceY", 1, 1, 1, 2, 40.19659),
    Sketcher.Constraint("DistanceY", 3, 2, 3, 1, 12.874732),
    Sketcher.Constraint("DistanceY", 20, 2, 20, 1, 12.778269),
    Sketcher.Constraint("DistanceX", 5, 1, 5, 2, 7.505553),
])
pad4 = body3.newObject("PartDesign::Pad", "Pad003")
pad4.Profile = sketch4
pad4.setExpression("Length", "Params.pad4_length")
body4 = doc.addObject("PartDesign::Body", "Body003")

# Sketch on XY plane
sketch5 = body4.newObject("Sketcher::SketchObject", "Sketch004")
sketch5.AttachmentSupport = (doc.getObject("XY_Plane003"), [""])
sketch5.MapMode = "FlatFace"
sketch5.AttachmentOffset = App.Placement(Vector(0, 0, 25), App.Rotation())
sketch5.addGeometry([
    Part.LineSegment(Vector(-5, 6, 0), Vector(-8, 12, 0)),  # 0
    Part.LineSegment(Vector(-8, 12, 0), Vector(-14, 12, 0)),  # 1
    Part.LineSegment(Vector(-14, 12, 0), Vector(-18, 6, 0)),  # 2
    Part.LineSegment(Vector(-18, 6, 0), Vector(-14, 1, 0)),  # 3
    Part.LineSegment(Vector(-14, 1, 0), Vector(-8, 1, 0)),  # 4
    Part.LineSegment(Vector(-8, 1, 0), Vector(-5, 6, 0)),  # 5
], False)
sketch5.addConstraint([
    Sketcher.Constraint("Coincident", 0, 2, 1, 1),
    Sketcher.Constraint("Coincident", 1, 2, 2, 1),
    Sketcher.Constraint("Coincident", 2, 2, 3, 1),
    Sketcher.Constraint("Coincident", 3, 2, 4, 1),
    Sketcher.Constraint("Coincident", 4, 2, 5, 1),
    Sketcher.Constraint("Coincident", 5, 2, 0, 1),
    Sketcher.Constraint("Horizontal", 1),
    Sketcher.Constraint("Horizontal", 4),
    Sketcher.Constraint("Parallel", 0, 3),
    Sketcher.Constraint("Parallel", 2, 5),
    Sketcher.Constraint("Horizontal", 2, 2, 5, 2),
    Sketcher.Constraint("Vertical", 1, 2, 3, 2),
    Sketcher.Constraint("Vertical", 0, 2, 4, 2),
    Sketcher.Constraint("Angle", 0, Q("120 deg")),
    Sketcher.Constraint("DistanceY", -1, 1, 0, 2, 12.0),
    Sketcher.Constraint("DistanceY", -1, 1, 3, 2, 1.0),
    Sketcher.Constraint("DistanceX", 1, 2, 1, 1, 6.350853),
    Sketcher.Constraint("DistanceX", 0, 2, -1, 1, 8.082904),
])
pad5 = body4.newObject("PartDesign::Pad", "Pad004")
pad5.Profile = sketch5
pad5.setExpression("Length", "Params.pad5_length")
body5 = doc.addObject("PartDesign::Body", "Body004")

# Sketch on XY plane
sketch6 = body5.newObject("Sketcher::SketchObject", "Sketch005")
sketch6.AttachmentSupport = (doc.getObject("XY_Plane004"), [""])
sketch6.MapMode = "FlatFace"
sketch6.AttachmentOffset = App.Placement(Vector(0, 0, 25), App.Rotation())
sketch6.addGeometry([
    Part.LineSegment(Vector(-8, -12, 0), Vector(-5, -6, 0)),  # 0
    Part.LineSegment(Vector(-5, -6, 0), Vector(-8, -1, 0)),  # 1
    Part.LineSegment(Vector(-8, -1, 0), Vector(-14, -1, 0)),  # 2
    Part.LineSegment(Vector(-14, -1, 0), Vector(-18, -6, 0)),  # 3
    Part.LineSegment(Vector(-18, -6, 0), Vector(-14, -12, 0)),  # 4
    Part.LineSegment(Vector(-14, -12, 0), Vector(-8, -12, 0)),  # 5
], False)
sketch6.addConstraint([
    Sketcher.Constraint("Coincident", 0, 2, 1, 1),
    Sketcher.Constraint("Coincident", 1, 2, 2, 1),
    Sketcher.Constraint("Coincident", 2, 2, 3, 1),
    Sketcher.Constraint("Coincident", 3, 2, 4, 1),
    Sketcher.Constraint("Coincident", 4, 2, 5, 1),
    Sketcher.Constraint("Coincident", 5, 2, 0, 1),
    Sketcher.Constraint("Horizontal", 2),
    Sketcher.Constraint("Horizontal", 5),
    Sketcher.Constraint("Parallel", 0, 3),
    Sketcher.Constraint("Parallel", 1, 4),
    Sketcher.Constraint("Horizontal", 0, 2, 3, 2),
    Sketcher.Constraint("Vertical", 2, 2, 4, 2),
    Sketcher.Constraint("Vertical", 1, 2, 5, 2),
    Sketcher.Constraint("Angle", 0, Q("60 deg")),
    Sketcher.Constraint("DistanceY", 1, 2, -1, 1, 1.0),
    Sketcher.Constraint("DistanceY", 4, 2, -1, 1, 12.0),
    Sketcher.Constraint("DistanceX", 2, 2, 2, 1, 6.350853),
    Sketcher.Constraint("DistanceX", 0, 2, -1, 1, 4.907477),
])
pad6 = body5.newObject("PartDesign::Pad", "Pad005")
pad6.Profile = sketch6
pad6.setExpression("Length", "Params.pad6_length")
body6 = doc.addObject("PartDesign::Body", "Body005")

# Sketch on XY plane
sketch7 = body6.newObject("Sketcher::SketchObject", "Sketch006")
sketch7.AttachmentSupport = (doc.getObject("XY_Plane005"), [""])
sketch7.MapMode = "FlatFace"
sketch7.AttachmentOffset = App.Placement(Vector(0, 0, 25), App.Rotation())
sketch7.addGeometry([
    Part.LineSegment(Vector(4, 6, 0), Vector(-4, 6, 0)),  # 0
    Part.LineSegment(Vector(-4, 6, 0), Vector(-8, 0, 0)),  # 1
    Part.LineSegment(Vector(-8, 0, 0), Vector(-4, -6, 0)),  # 2
    Part.LineSegment(Vector(-4, -6, 0), Vector(4, -6, 0)),  # 3
    Part.LineSegment(Vector(4, -6, 0), Vector(8, 0, 0)),  # 4
    Part.LineSegment(Vector(8, 0, 0), Vector(4, 6, 0)),  # 5
], False)
sketch7.addConstraint([
    Sketcher.Constraint("Coincident", 0, 2, 1, 1),
    Sketcher.Constraint("Coincident", 1, 2, 2, 1),
    Sketcher.Constraint("Coincident", 2, 2, 3, 1),
    Sketcher.Constraint("Coincident", 3, 2, 4, 1),
    Sketcher.Constraint("Coincident", 4, 2, 5, 1),
    Sketcher.Constraint("Coincident", 5, 2, 0, 1),
    Sketcher.Constraint("Horizontal", 0),
    Sketcher.Constraint("Horizontal", 3),
    Sketcher.Constraint("Symmetric", 0, 2, 3, 2, -1, 1),
    Sketcher.Constraint("Symmetric", 1, 2, 4, 2, -1, 1),
    Sketcher.Constraint("PointOnObject", 1, 2, -1),
    Sketcher.Constraint("Parallel", 2, 5),
    Sketcher.Constraint("Vertical", 0, 2, 2, 2),
    Sketcher.Constraint("Angle", 1, Q("-120 deg")),
    Sketcher.Constraint("DistanceY", 2, 2, 0, 2, 13.0),
    Sketcher.Constraint("DistanceX", 0, 2, 0, 1, 7.505554),
])
pad7 = body6.newObject("PartDesign::Pad", "Pad006")
pad7.Profile = sketch7
pad7.setExpression("Length", "Params.pad7_length")
body7 = doc.addObject("PartDesign::Body", "Body006")

# Sketch on XY plane
sketch8 = body7.newObject("Sketcher::SketchObject", "Sketch007")
sketch8.AttachmentSupport = (doc.getObject("XY_Plane006"), [""])
sketch8.MapMode = "FlatFace"
sketch8.AttachmentOffset = App.Placement(Vector(0, 0, 25), App.Rotation())
sketch8.addGeometry([
    Part.LineSegment(Vector(3, -8, 0), Vector(-3, -8, 0)),  # 0
    Part.LineSegment(Vector(-3, -8, 0), Vector(-6, -13, 0)),  # 1
    Part.LineSegment(Vector(-6, -13, 0), Vector(-3, -18, 0)),  # 2
    Part.LineSegment(Vector(-3, -18, 0), Vector(3, -18, 0)),  # 3
    Part.LineSegment(Vector(3, -18, 0), Vector(6, -13, 0)),  # 4
    Part.LineSegment(Vector(6, -13, 0), Vector(3, -8, 0)),  # 5
], False)
sketch8.addConstraint([
    Sketcher.Constraint("Coincident", 0, 2, 1, 1),
    Sketcher.Constraint("Coincident", 1, 2, 2, 1),
    Sketcher.Constraint("Coincident", 2, 2, 3, 1),
    Sketcher.Constraint("Coincident", 3, 2, 4, 1),
    Sketcher.Constraint("Coincident", 4, 2, 5, 1),
    Sketcher.Constraint("Coincident", 5, 2, 0, 1),
    Sketcher.Constraint("Horizontal", 0),
    Sketcher.Constraint("Horizontal", 3),
    Sketcher.Constraint("Symmetric", 1, 2, 4, 2, -2),
    Sketcher.Constraint("Parallel", 1, 4),
    Sketcher.Constraint("Parallel", 2, 5),
    Sketcher.Constraint("Vertical", 0, 2, 2, 2),
    Sketcher.Constraint("Vertical", 3, 2, 5, 2),
    Sketcher.Constraint("Angle", 1, Q("-120 deg")),
    Sketcher.Constraint("DistanceY", 1, 2, -1, 1, 13.0),
    Sketcher.Constraint("DistanceY", 2, 2, 0, 2, 11.0),
    Sketcher.Constraint("DistanceX", 0, 2, 0, 1, 6.350853),
])
pad8 = body7.newObject("PartDesign::Pad", "Pad007")
pad8.Profile = sketch8
pad8.setExpression("Length", "Params.pad8_length")
body8 = doc.addObject("PartDesign::Body", "Body007")

# Sketch on XY plane
sketch9 = body8.newObject("Sketcher::SketchObject", "Sketch008")
sketch9.AttachmentSupport = (doc.getObject("XY_Plane007"), [""])
sketch9.MapMode = "FlatFace"
sketch9.AttachmentOffset = App.Placement(Vector(0, 0, 25), App.Rotation())
sketch9.addGeometry([
    Part.LineSegment(Vector(8, -12, 0), Vector(14, -12, 0)),  # 0
    Part.LineSegment(Vector(14, -12, 0), Vector(18, -6, 0)),  # 1
    Part.LineSegment(Vector(18, -6, 0), Vector(14, -1, 0)),  # 2
    Part.LineSegment(Vector(14, -1, 0), Vector(8, -1, 0)),  # 3
    Part.LineSegment(Vector(8, -1, 0), Vector(5, -6, 0)),  # 4
    Part.LineSegment(Vector(5, -6, 0), Vector(8, -12, 0)),  # 5
], False)
sketch9.addConstraint([
    Sketcher.Constraint("Coincident", 0, 2, 1, 1),
    Sketcher.Constraint("Coincident", 1, 2, 2, 1),
    Sketcher.Constraint("Coincident", 2, 2, 3, 1),
    Sketcher.Constraint("Coincident", 3, 2, 4, 1),
    Sketcher.Constraint("Coincident", 4, 2, 5, 1),
    Sketcher.Constraint("Coincident", 5, 2, 0, 1),
    Sketcher.Constraint("Horizontal", 0),
    Sketcher.Constraint("Horizontal", 3),
    Sketcher.Constraint("Parallel", 1, 4),
    Sketcher.Constraint("Parallel", 2, 5),
    Sketcher.Constraint("Horizontal", 1, 2, 4, 2),
    Sketcher.Constraint("Vertical", 0, 2, 2, 2),
    Sketcher.Constraint("Vertical", 3, 2, 5, 2),
    Sketcher.Constraint("Angle", 1, Q("60 deg")),
    Sketcher.Constraint("DistanceY", 0, 2, -1, 1, 12.0),
    Sketcher.Constraint("DistanceY", 2, 2, -1, 1, 1.0),
    Sketcher.Constraint("DistanceX", 0, 1, 0, 2, 6.350853),
    Sketcher.Constraint("DistanceX", -1, 1, 0, 2, 14.433757),
])
pad9 = body8.newObject("PartDesign::Pad", "Pad008")
pad9.Profile = sketch9
pad9.setExpression("Length", "Params.pad9_length")
body9 = doc.addObject("PartDesign::Body", "Body008")

# Sketch on XY plane
sketch10 = body9.newObject("Sketcher::SketchObject", "Sketch009")
sketch10.AttachmentSupport = (doc.getObject("XY_Plane008"), [""])
sketch10.MapMode = "FlatFace"
sketch10.AttachmentOffset = App.Placement(Vector(0, 0, 25), App.Rotation())
sketch10.addGeometry([
    Part.LineSegment(Vector(14, 1, 0), Vector(18, 6, 0)),  # 0
    Part.LineSegment(Vector(18, 6, 0), Vector(14, 12, 0)),  # 1
    Part.LineSegment(Vector(14, 12, 0), Vector(8, 12, 0)),  # 2
    Part.LineSegment(Vector(8, 12, 0), Vector(5, 6, 0)),  # 3
    Part.LineSegment(Vector(5, 6, 0), Vector(8, 1, 0)),  # 4
    Part.LineSegment(Vector(8, 1, 0), Vector(14, 1, 0)),  # 5
], False)
sketch10.addConstraint([
    Sketcher.Constraint("Coincident", 0, 2, 1, 1),
    Sketcher.Constraint("Coincident", 1, 2, 2, 1),
    Sketcher.Constraint("Coincident", 2, 2, 3, 1),
    Sketcher.Constraint("Coincident", 3, 2, 4, 1),
    Sketcher.Constraint("Coincident", 4, 2, 5, 1),
    Sketcher.Constraint("Coincident", 5, 2, 0, 1),
    Sketcher.Constraint("Horizontal", 2),
    Sketcher.Constraint("Horizontal", 5),
    Sketcher.Constraint("Parallel", 0, 3),
    Sketcher.Constraint("Parallel", 1, 4),
    Sketcher.Constraint("Horizontal", 0, 2, 3, 2),
    Sketcher.Constraint("Vertical", 2, 2, 4, 2),
    Sketcher.Constraint("Vertical", 1, 2, 5, 2),
    Sketcher.Constraint("Angle", 0, Q("60 deg")),
    Sketcher.Constraint("DistanceY", -1, 1, 1, 2, 12.0),
    Sketcher.Constraint("DistanceY", -1, 1, 4, 2, 1.0),
    Sketcher.Constraint("DistanceX", 2, 2, 2, 1, 6.350853),
    Sketcher.Constraint("DistanceX", -1, 1, 0, 2, 17.609183),
])
pad10 = body9.newObject("PartDesign::Pad", "Pad009")
pad10.Profile = sketch10
pad10.setExpression("Length", "Params.pad10_length")
body10 = doc.addObject("PartDesign::Body", "Body009")

# Sketch on XY plane
sketch11 = body10.newObject("Sketcher::SketchObject", "Sketch010")
sketch11.AttachmentSupport = (doc.getObject("XY_Plane009"), [""])
sketch11.MapMode = "FlatFace"
sketch11.AttachmentOffset = App.Placement(Vector(0, 0, 25), App.Rotation())
sketch11.addGeometry([
    Part.LineSegment(Vector(3, 8, 0), Vector(6, 13, 0)),  # 0
    Part.LineSegment(Vector(6, 13, 0), Vector(3, 18, 0)),  # 1
    Part.LineSegment(Vector(3, 18, 0), Vector(-3, 18, 0)),  # 2
    Part.LineSegment(Vector(-3, 18, 0), Vector(-6, 13, 0)),  # 3
    Part.LineSegment(Vector(-6, 13, 0), Vector(-3, 8, 0)),  # 4
    Part.LineSegment(Vector(-3, 8, 0), Vector(3, 8, 0)),  # 5
], False)
sketch11.addConstraint([
    Sketcher.Constraint("Coincident", 0, 2, 1, 1),
    Sketcher.Constraint("Coincident", 1, 2, 2, 1),
    Sketcher.Constraint("Coincident", 2, 2, 3, 1),
    Sketcher.Constraint("Coincident", 3, 2, 4, 1),
    Sketcher.Constraint("Coincident", 4, 2, 5, 1),
    Sketcher.Constraint("Coincident", 5, 2, 0, 1),
    Sketcher.Constraint("Horizontal", 2),
    Sketcher.Constraint("Horizontal", 5),
    Sketcher.Constraint("Symmetric", 0, 2, 3, 2, -2),
    Sketcher.Constraint("Parallel", 0, 3),
    Sketcher.Constraint("Parallel", 1, 4),
    Sketcher.Constraint("Vertical", 2, 2, 4, 2),
    Sketcher.Constraint("Vertical", 1, 2, 5, 2),
    Sketcher.Constraint("Angle", 0, Q("60 deg")),
    Sketcher.Constraint("DistanceY", -1, 1, 0, 2, 13.0),
    Sketcher.Constraint("DistanceY", 4, 2, 2, 2, 11.0),
    Sketcher.Constraint("DistanceX", 2, 2, 2, 1, 6.350853),
])
pad11 = body10.newObject("PartDesign::Pad", "Pad010")
pad11.Profile = sketch11
pad11.setExpression("Length", "Params.pad11_length")

doc.recompute()
